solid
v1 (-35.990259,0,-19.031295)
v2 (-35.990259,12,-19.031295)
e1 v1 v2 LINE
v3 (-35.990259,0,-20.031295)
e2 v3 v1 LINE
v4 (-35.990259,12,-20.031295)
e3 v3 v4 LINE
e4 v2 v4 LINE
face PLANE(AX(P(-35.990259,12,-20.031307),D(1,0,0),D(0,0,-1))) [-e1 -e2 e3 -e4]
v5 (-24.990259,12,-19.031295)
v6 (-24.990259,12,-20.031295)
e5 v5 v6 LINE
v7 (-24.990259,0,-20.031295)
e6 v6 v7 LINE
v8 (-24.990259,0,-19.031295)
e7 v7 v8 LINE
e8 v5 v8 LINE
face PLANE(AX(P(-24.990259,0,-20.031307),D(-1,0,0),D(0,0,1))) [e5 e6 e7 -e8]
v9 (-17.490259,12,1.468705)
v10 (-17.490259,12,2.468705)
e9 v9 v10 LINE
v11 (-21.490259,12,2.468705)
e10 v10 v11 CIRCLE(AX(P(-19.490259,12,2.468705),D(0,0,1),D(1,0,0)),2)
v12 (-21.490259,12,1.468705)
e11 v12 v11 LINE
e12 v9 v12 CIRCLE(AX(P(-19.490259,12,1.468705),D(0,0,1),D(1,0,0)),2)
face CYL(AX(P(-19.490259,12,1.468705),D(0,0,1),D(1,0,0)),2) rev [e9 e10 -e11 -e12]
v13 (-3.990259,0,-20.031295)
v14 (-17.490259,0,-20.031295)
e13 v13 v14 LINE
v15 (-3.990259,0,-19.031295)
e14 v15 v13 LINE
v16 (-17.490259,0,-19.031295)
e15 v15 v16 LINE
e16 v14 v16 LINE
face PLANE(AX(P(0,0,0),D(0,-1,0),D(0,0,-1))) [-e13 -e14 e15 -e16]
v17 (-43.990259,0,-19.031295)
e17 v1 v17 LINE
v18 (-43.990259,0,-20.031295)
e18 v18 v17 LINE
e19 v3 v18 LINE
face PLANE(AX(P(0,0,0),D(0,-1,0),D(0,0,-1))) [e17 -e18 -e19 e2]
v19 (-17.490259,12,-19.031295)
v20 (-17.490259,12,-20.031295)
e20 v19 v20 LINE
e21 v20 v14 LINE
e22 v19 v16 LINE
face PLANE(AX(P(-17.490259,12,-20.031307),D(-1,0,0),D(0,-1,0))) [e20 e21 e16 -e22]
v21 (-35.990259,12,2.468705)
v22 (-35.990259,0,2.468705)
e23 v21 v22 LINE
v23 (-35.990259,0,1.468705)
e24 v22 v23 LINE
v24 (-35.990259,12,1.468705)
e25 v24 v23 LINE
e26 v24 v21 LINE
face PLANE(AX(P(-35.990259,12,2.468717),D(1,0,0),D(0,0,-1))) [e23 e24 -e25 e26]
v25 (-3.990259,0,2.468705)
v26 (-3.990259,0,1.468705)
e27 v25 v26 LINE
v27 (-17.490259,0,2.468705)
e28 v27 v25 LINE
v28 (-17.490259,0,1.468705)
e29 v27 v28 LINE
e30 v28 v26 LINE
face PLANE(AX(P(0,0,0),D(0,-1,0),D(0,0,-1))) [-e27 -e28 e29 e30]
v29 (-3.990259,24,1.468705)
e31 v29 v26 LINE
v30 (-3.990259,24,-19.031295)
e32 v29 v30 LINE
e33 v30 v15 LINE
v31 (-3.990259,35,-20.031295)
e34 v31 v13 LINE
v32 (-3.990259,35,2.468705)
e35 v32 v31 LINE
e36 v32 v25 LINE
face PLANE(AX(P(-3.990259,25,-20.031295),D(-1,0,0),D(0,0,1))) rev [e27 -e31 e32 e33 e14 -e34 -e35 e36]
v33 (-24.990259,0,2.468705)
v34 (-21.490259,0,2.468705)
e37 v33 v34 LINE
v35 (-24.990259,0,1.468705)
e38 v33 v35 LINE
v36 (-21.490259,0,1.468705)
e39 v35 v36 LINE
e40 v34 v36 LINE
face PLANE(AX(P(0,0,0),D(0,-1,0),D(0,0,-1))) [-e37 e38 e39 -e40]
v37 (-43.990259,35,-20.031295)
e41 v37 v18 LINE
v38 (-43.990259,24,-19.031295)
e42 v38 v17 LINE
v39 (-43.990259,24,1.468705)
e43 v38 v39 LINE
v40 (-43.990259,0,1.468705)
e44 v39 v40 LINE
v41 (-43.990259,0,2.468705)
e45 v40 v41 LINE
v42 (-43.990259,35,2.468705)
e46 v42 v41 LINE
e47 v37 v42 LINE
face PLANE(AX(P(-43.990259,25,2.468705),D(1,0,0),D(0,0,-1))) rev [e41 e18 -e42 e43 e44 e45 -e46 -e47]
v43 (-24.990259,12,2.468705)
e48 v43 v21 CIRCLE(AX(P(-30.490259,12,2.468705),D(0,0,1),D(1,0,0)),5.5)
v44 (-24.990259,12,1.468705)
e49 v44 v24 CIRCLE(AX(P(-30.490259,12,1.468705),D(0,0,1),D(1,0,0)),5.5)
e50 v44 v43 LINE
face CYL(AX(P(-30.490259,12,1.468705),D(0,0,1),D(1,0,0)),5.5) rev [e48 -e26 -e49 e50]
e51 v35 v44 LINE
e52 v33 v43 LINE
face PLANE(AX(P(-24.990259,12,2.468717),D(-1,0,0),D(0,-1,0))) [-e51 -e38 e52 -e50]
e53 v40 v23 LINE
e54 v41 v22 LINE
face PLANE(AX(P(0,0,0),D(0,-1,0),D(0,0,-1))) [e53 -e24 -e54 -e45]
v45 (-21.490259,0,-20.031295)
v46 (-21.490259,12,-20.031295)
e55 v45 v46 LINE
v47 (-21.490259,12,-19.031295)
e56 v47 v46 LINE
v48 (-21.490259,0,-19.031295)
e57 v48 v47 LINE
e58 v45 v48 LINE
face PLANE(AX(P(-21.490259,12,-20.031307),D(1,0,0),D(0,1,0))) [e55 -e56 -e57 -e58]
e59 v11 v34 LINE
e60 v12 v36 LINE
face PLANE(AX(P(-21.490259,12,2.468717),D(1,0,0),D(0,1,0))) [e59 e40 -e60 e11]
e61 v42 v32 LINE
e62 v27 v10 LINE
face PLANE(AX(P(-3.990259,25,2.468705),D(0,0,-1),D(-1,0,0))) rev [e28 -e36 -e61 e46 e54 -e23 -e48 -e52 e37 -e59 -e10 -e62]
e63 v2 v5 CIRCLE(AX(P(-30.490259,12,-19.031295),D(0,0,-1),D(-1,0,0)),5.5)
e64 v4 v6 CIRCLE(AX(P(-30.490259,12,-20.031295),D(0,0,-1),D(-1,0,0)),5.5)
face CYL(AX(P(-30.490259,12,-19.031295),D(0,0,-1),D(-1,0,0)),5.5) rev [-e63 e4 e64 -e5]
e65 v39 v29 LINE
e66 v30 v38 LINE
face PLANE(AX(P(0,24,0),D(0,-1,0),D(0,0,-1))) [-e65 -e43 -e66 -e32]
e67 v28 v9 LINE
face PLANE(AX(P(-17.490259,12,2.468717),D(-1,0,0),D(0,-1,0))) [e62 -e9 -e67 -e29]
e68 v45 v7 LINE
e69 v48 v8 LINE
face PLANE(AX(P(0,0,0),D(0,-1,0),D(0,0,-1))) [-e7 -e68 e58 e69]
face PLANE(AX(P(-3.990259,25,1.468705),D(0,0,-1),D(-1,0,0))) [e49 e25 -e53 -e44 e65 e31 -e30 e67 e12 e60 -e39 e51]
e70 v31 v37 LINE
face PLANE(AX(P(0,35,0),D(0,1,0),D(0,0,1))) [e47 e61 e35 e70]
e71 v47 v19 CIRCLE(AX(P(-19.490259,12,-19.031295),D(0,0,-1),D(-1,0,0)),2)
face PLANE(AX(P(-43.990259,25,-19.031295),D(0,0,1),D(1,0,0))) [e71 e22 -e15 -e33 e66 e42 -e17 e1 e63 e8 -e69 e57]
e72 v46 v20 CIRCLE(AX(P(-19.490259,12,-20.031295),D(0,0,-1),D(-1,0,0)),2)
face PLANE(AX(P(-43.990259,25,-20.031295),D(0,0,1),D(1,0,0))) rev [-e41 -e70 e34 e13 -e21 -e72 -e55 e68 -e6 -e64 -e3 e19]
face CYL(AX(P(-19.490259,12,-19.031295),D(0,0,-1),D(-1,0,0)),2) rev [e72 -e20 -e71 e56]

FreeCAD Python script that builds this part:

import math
import FreeCAD as App
import Part
import Sketcher
from FreeCAD import Vector
Q = App.Units.Quantity


def faces_at(feature, points):
    """Names of the faces that lie closest to the given points."""
    faces = feature.Shape.Faces
    near = lambda p: min(range(len(faces)), key=lambda i: faces[i].distToShape(Part.Vertex(*p))[0])
    return sorted({f"Face{near(p) + 1}" for p in points})


def add_polygon(sketch, points):
    """Adds a closed chain of lines whose ends are joined by coincident constraints."""
    first, n = sketch.GeometryCount, len(points)
    for a, b in zip(points, points[1:] + points[:1]):
        sketch.addGeometry(Part.LineSegment(App.Vector(*a, 0), App.Vector(*b, 0)), False)
    for i in range(n):
        sketch.addConstraint(Sketcher.Constraint("Coincident", first + i, 2, first + (i + 1) % n, 1))

doc = App.newDocument("Part")
params = doc.addObject("Spreadsheet::Sheet", "Params")
for row, (alias, value) in enumerate([
    ("sketch1_width", "40 mm"),
    ("sketch1_height", "22.5 mm"),
    ("pad1_length", "25 mm"),
    ("thickness_wall", "1 mm"),
    ("sketch2_radius", "2 mm"),
    ("sketch2_radius2", "5.5 mm"),
    ("sketch2_height", "12 mm"),
    ("pocket1_length", "56.375021 mm"),
    ("pocket1_length2", "1 mm"),
    ("sketch3_radius", "2 mm"),
    ("sketch3_radius2", "5.5 mm"),
    ("sketch3_height", "12 mm"),
    ("sketch4_width", "40 mm"),
    ("sketch4_height", "22.5 mm"),
    ("pad2_length", "10 mm"),
], start=1):
    params.set(f"A{row}", alias)
    params.set(f"B{row}", "=" + value)
    params.setAlias(f"B{row}", alias)

body = doc.addObject("PartDesign::Body", "Body")

sketch1 = doc.addObject("Sketcher::SketchObject", "Sketch")
body.addObject(sketch1)
sketch1.AttachmentSupport = (doc.XZ_Plane, [""])
sketch1.MapMode = "FlatFace"
add_polygon(sketch1, [(-43.990259, -20.031295), (-43.990259, 2.468705), (-3.990259, 2.468705), (-3.990259, -20.031295)])
sketch1.addConstraint([
    Sketcher.Constraint("Vertical", 0),
    Sketcher.Constraint("Horizontal", 1),
    Sketcher.Constraint("Vertical", 2),
    Sketcher.Constraint("Horizontal", 3),
    Sketcher.Constraint("DistanceX", 1, 1, 1, 2, Q("40 mm")),
    Sketcher.Constraint("DistanceY", 0, 1, 0, 2, Q("22.5 mm")),
    Sketcher.Constraint("DistanceX", 0, 2, -1, 1, Q("43.990259 mm")),
    Sketcher.Constraint("DistanceY", -1, 1, 0, 2, Q("2.468705 mm")),
])
sketch1.setExpression("Constraints[8]", "Params.sketch1_width")
sketch1.setExpression("Constraints[9]", "Params.sketch1_height")
pad1 = doc.addObject("PartDesign::Pad", "Pad")
body.addObject(pad1)
pad1.Profile = sketch1
pad1.setExpression("Length", "Params.pad1_length")
pad1.Reversed = True
doc.recompute()

thickness = doc.addObject("PartDesign::Thickness", "Thickness")
body.addObject(thickness)
thickness.Base = (pad1, faces_at(pad1, [(-23.99, 0, -8.781), (-3.99, 12.5, -8.781), (-43.99, 12.5, -8.781)]))
thickness.setExpression("Value", "Params.thickness_wall")
thickness.Reversed = True
thickness.Join = "Intersection"

sketch2 = doc.addObject("Sketcher::SketchObject", "Sketch001")
body.addObject(sketch2)
sketch2.AttachmentSupport = (doc.XY_Plane, [""])
sketch2.MapMode = "FlatFace"
sketch2.AttachmentOffset = App.Placement(Vector(0, 0, 2.468705), App.Rotation())
sketch2.addGeometry([
    Part.LineSegment(Vector(-24.990259, 0, 0), Vector(-24.990259, 12, 0)),
    Part.ArcOfCircle(Part.Circle(Vector(-30.490259, 12, 0), Vector(0, 0, 1), 5.5), math.radians(0), math.radians(180)),
    Part.LineSegment(Vector(-35.990259, 12, 0), Vector(-35.990259, 0, 0)),
    Part.LineSegment(Vector(-35.990259, 0, 0), Vector(-24.990259, 0, 0)),
    Part.LineSegment(Vector(-21.490259, 12, 0), Vector(-21.490259, 0, 0)),
    Part.LineSegment(Vector(-21.490259, 0, 0), Vector(-17.490259, 0, 0)),
    Part.LineSegment(Vector(-17.490259, 0, 0), Vector(-17.490259, 12, 0)),
    Part.ArcOfCircle(Part.Circle(Vector(-19.490259, 12, 0), Vector(0, 0, 1), 2), math.radians(0), math.radians(180)),
], False)
sketch2.addConstraint([
    Sketcher.Constraint("Tangent", 0, 2, 1, 1),
    Sketcher.Constraint("Tangent", 1, 2, 2, 1),
    Sketcher.Constraint("Coincident", 2, 2, 3, 1),
    Sketcher.Constraint("Coincident", 3, 2, 0, 1),
    Sketcher.Constraint("Coincident", 4, 2, 5, 1),
    Sketcher.Constraint("Coincident", 5, 2, 6, 1),
    Sketcher.Constraint("Tangent", 6, 2, 7, 1),
    Sketcher.Constraint("Tangent", 7, 2, 4, 1),
    Sketcher.Constraint("Vertical", 0),
    Sketcher.Constraint("Vertical", 2),
    Sketcher.Constraint("Horizontal", 3),
    Sketcher.Constraint("Vertical", 4),
    Sketcher.Constraint("Horizontal", 5),
    Sketcher.Constraint("Vertical", 6),
    Sketcher.Constraint("PointOnObject", 2, 2, -1),
    Sketcher.Constraint("PointOnObject", 4, 2, -1),
    Sketcher.Constraint("Horizontal", 1, 3, 7, 3),
    Sketcher.Constraint("Radius", 7, Q("2 mm")),
    Sketcher.Constraint("Radius", 1, Q("5.5 mm")),
    Sketcher.Constraint("DistanceY", 0, 1, 0, 2, Q("12 mm")),
    Sketcher.Constraint("DistanceX", 1, 3, 7, 3, Q("11 mm")),
    Sketcher.Constraint("DistanceX", 1, 3, -1, 1, Q("30.490259 mm")),
])
sketch2.setExpression("Constraints[17]", "Params.sketch2_radius")
sketch2.setExpression("Constraints[18]", "Params.sketch2_radius2")
sketch2.setExpression("Constraints[19]", "Params.sketch2_height")
pocket1 = doc.addObject("PartDesign::Pocket", "Pocket")
body.addObject(pocket1)
pocket1.Profile = sketch2
pocket1.Type = "TwoLengths"
pocket1.setExpression("Length", "Params.pocket1_length")
pocket1.setExpression("Length2", "Params.pocket1_length2")
pocket1.Reversed = True

sketch3 = doc.addObject("Sketcher::SketchObject", "Sketch002")
body.addObject(sketch3)
sketch3.AttachmentSupport = (doc.XY_Plane, [""])
sketch3.MapMode = "FlatFace"
sketch3.AttachmentOffset = App.Placement(Vector(0, 0, -20.031295), App.Rotation())
sketch3.addGeometry([
    Part.LineSegment(Vector(-35.990259, 0, 0), Vector(-35.990259, 12, 0)),
    Part.ArcOfCircle(Part.Circle(Vector(-30.490259, 12, 0), Vector(0, 0, 1), 5.5), math.radians(0), math.radians(180)),
    Part.LineSegment(Vector(-24.990259, 12, 0), Vector(-24.990259, 0, 0)),
    Part.LineSegment(Vector(-24.990259, 0, 0), Vector(-35.990259, 0, 0)),
    Part.LineSegment(Vector(-17.490259, 12, 0), Vector(-17.490259, 0, 0)),
    Part.LineSegment(Vector(-17.490259, 0, 0), Vector(-21.490259, 0, 0)),
    Part.LineSegment(Vector(-21.490259, 0, 0), Vector(-21.490259, 12, 0)),
    Part.ArcOfCircle(Part.Circle(Vector(-19.490259, 12, 0), Vector(0, 0, 1), 2), math.radians(0), math.radians(180)),
], False)
sketch3.addConstraint([
    Sketcher.Constraint("Tangent", 0, 2, 1, 2),
    Sketcher.Constraint("Tangent", 1, 1, 2, 1),
    Sketcher.Constraint("Coincident", 2, 2, 3, 1),
    Sketcher.Constraint("Coincident", 3, 2, 0, 1),
    Sketcher.Constraint("Coincident", 4, 2, 5, 1),
    Sketcher.Constraint("Coincident", 5, 2, 6, 1),
    Sketcher.Constraint("Tangent", 6, 2, 7, 2),
    Sketcher.Constraint("Tangent", 7, 1, 4, 1),
    Sketcher.Constraint("Vertical", 0),
    Sketcher.Constraint("Vertical", 2),
    Sketcher.Constraint("Horizontal", 3),
    Sketcher.Constraint("Vertical", 4),
    Sketcher.Constraint("Horizontal", 5),
    Sketcher.Constraint("Vertical", 6),
    Sketcher.Constraint("PointOnObject", 2, 2, -1),
    Sketcher.Constraint("PointOnObject", 4, 2, -1),
    Sketcher.Constraint("Horizontal", 1, 3, 7, 3),
    Sketcher.Constraint("Radius", 7, Q("2 mm")),
    Sketcher.Constraint("Radius", 1, Q("5.5 mm")),
    Sketcher.Constraint("DistanceY", 0, 1, 0, 2, Q("12 mm")),
    Sketcher.Constraint("DistanceX", 1, 3, 7, 3, Q("11 mm")),
    Sketcher.Constraint("DistanceX", 1, 3, -1, 1, Q("30.490259 mm")),
])
sketch3.setExpression("Constraints[17]", "Params.sketch3_radius")
sketch3.setExpression("Constraints[18]", "Params.sketch3_radius2")
sketch3.setExpression("Constraints[19]", "Params.sketch3_height")
pocket2 = doc.addObject("PartDesign::Pocket", "Pocket001")
body.addObject(pocket2)
pocket2.Profile = sketch3
pocket2.Type = "ThroughAll"
pocket2.Midplane = True

sketch4 = doc.addObject("Sketcher::SketchObject", "Sketch003")
body.addObject(sketch4)
sketch4.AttachmentSupport = (doc.XZ_Plane, [""])
sketch4.MapMode = "FlatFace"
sketch4.AttachmentOffset = App.Placement(Vector(0, 0, -25), App.Rotation())
add_polygon(sketch4, [(-43.990259, -20.031295), (-43.990259, 2.468705), (-3.990259, 2.468705), (-3.990259, -20.031295)])
sketch4.addConstraint([
    Sketcher.Constraint("Vertical", 0),
    Sketcher.Constraint("Horizontal", 1),
    Sketcher.Constraint("Vertical", 2),
    Sketcher.Constraint("Horizontal", 3),
    Sketcher.Constraint("DistanceX", 1, 1, 1, 2, Q("40 mm")),
    Sketcher.Constraint("DistanceY", 0, 1, 0, 2, Q("22.5 mm")),
    Sketcher.Constraint("DistanceX", 0, 2, -1, 1, Q("43.990259 mm")),
    Sketcher.Constraint("DistanceY", -1, 1, 0, 2, Q("2.468705 mm")),
])
sketch4.setExpression("Constraints[8]", "Params.sketch4_width")
sketch4.setExpression("Constraints[9]", "Params.sketch4_height")
pad2 = doc.addObject("PartDesign::Pad", "Pad001")
body.addObject(pad2)
pad2.Profile = sketch4
pad2.setExpression("Length", "Params.pad2_length")
pad2.Reversed = True

doc.recompute()
